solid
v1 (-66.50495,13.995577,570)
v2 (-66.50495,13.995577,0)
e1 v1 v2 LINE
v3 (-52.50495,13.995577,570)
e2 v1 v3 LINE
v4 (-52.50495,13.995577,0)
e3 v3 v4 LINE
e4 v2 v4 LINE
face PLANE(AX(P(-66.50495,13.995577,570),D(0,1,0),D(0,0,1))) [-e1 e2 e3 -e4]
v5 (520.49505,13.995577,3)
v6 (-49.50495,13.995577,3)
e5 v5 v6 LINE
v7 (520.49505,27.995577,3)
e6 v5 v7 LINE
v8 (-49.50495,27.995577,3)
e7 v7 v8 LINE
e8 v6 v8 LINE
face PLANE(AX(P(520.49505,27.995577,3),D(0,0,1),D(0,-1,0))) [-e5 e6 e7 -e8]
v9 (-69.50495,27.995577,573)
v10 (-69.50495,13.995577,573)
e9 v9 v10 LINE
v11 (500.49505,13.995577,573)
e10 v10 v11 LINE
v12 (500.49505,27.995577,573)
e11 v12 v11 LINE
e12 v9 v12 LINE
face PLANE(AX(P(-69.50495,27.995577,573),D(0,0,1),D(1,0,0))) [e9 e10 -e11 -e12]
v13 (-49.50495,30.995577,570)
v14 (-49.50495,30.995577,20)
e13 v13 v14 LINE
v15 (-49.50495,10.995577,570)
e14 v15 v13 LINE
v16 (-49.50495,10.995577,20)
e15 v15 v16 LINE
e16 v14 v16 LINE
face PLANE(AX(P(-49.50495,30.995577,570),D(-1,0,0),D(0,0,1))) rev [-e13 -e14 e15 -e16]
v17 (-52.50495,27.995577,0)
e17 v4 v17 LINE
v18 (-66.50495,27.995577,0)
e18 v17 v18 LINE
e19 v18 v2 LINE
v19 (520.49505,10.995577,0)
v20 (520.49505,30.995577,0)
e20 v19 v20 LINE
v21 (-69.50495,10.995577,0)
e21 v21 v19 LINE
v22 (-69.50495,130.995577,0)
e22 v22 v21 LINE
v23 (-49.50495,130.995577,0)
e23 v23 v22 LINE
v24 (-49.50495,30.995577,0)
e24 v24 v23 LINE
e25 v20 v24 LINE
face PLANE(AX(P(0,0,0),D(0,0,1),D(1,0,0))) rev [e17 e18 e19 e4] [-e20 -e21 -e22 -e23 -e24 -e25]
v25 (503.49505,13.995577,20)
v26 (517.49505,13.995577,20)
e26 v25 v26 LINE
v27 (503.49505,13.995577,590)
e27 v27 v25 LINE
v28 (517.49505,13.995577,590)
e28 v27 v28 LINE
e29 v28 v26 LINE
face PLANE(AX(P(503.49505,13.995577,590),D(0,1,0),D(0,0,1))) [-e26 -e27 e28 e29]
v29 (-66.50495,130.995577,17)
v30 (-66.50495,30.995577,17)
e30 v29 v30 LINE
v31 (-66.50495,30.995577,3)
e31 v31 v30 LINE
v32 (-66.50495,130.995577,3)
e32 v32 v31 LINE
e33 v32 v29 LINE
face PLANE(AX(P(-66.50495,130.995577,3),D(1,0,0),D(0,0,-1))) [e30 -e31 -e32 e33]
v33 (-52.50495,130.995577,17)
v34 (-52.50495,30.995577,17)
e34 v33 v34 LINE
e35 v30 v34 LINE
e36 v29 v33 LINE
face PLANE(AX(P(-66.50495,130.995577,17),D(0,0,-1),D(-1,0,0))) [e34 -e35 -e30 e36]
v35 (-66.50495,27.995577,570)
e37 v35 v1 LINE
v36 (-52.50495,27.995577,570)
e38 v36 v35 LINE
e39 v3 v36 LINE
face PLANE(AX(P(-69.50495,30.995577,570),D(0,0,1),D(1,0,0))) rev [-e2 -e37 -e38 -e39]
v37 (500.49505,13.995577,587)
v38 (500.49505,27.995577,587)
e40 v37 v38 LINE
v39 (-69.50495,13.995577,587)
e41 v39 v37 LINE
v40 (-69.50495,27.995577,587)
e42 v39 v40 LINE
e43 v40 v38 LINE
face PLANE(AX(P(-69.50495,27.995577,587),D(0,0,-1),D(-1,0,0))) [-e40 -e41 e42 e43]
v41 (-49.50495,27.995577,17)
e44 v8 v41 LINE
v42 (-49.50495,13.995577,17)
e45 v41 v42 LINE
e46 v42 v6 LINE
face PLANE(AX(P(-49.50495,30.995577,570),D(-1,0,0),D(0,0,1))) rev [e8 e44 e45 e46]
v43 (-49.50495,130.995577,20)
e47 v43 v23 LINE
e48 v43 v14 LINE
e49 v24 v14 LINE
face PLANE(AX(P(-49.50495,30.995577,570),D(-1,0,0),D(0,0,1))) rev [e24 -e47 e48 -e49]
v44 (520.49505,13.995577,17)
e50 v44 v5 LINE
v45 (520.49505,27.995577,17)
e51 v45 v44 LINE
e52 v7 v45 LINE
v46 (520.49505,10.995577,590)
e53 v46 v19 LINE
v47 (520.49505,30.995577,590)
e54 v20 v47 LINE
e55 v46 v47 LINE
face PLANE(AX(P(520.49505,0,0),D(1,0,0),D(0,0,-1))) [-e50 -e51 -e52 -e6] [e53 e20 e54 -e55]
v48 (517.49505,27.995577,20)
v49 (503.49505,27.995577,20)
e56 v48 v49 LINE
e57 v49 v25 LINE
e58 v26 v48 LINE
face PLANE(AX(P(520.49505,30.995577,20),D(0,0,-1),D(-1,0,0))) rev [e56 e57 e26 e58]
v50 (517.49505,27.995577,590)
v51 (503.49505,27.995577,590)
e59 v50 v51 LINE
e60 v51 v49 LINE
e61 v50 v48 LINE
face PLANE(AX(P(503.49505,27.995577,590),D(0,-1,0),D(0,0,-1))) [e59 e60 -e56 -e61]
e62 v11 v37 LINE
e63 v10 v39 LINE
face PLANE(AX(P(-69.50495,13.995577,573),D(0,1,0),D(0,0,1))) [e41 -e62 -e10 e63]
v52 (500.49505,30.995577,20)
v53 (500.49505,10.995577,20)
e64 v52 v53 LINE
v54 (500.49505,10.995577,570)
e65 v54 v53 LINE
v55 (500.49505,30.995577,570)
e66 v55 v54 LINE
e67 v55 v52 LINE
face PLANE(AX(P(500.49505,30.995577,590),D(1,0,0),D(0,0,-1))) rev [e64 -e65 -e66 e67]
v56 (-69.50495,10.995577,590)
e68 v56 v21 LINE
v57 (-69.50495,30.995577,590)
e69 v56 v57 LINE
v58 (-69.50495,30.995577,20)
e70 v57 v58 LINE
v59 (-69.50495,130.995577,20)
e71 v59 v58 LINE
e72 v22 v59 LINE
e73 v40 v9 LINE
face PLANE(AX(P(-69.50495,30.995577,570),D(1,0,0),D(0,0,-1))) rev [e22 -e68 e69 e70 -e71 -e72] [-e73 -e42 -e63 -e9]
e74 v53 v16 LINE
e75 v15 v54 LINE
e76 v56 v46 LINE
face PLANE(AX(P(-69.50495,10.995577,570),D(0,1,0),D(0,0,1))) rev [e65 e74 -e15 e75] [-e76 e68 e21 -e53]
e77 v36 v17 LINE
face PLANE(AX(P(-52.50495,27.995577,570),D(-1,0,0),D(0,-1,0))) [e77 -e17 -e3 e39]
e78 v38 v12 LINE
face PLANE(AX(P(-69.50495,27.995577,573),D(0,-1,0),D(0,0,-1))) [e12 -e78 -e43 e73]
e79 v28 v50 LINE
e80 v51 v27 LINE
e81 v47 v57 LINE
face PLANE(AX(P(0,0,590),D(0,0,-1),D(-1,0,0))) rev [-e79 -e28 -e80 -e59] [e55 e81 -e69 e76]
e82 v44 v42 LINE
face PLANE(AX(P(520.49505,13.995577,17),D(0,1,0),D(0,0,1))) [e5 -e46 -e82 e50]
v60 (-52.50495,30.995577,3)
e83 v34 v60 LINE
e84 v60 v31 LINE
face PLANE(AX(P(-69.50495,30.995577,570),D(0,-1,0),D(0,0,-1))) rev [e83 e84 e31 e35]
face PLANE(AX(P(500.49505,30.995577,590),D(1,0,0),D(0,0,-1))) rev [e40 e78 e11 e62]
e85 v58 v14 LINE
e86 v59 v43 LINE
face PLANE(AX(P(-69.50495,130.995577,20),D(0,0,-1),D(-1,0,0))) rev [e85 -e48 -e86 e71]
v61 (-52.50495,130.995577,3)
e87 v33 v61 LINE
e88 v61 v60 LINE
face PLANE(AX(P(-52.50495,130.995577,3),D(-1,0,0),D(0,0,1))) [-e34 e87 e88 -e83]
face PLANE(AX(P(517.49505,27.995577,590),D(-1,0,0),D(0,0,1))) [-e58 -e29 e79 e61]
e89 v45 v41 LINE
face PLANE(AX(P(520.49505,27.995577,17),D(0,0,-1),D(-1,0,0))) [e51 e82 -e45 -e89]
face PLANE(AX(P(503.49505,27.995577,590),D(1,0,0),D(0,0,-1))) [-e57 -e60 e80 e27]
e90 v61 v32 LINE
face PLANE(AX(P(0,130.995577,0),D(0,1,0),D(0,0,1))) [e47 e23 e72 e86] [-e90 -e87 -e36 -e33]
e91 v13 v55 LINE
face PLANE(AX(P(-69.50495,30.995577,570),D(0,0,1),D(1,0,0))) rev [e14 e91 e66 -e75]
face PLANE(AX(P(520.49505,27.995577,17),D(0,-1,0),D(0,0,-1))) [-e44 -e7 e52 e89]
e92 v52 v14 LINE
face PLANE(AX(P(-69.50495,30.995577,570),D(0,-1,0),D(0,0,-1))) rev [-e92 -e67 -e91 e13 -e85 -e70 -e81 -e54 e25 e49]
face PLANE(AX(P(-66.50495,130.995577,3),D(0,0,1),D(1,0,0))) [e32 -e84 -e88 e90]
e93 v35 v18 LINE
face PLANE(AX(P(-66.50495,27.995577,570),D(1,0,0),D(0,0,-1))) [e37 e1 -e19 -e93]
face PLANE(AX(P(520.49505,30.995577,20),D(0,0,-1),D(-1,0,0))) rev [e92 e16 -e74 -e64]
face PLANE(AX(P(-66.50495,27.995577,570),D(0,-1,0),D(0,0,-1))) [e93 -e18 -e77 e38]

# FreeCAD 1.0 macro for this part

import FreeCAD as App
import Part
import Sketcher


def add_polygon(sketch, points):
    """Adds a closed chain of lines whose ends are joined by coincident constraints."""
    first, n = sketch.GeometryCount, len(points)
    for a, b in zip(points, points[1:] + points[:1]):
        sketch.addGeometry(Part.LineSegment(App.Vector(*a, 0), App.Vector(*b, 0)), False)
    for i in range(n):
        sketch.addConstraint(Sketcher.Constraint("Coincident", first + i, 2, first + (i + 1) % n, 1))

doc = App.newDocument("Part")
body = doc.addObject("PartDesign::Body", "Body")

# Sketch on XY plane
sketch1 = body.newObject("Sketcher::SketchObject", "Sketch")
sketch1.AttachmentSupport = (doc.getObject("XY_Plane"), [""])
sketch1.MapMode = "FlatFace"
add_polygon(sketch1, [(-70, 31), (-70, 11), (-50, 11), (-50, 31)])  # lines 0-3
add_polygon(sketch1, [(-53, 14), (-67, 14), (-67, 28), (-53, 28)])  # lines 4-7
sketch1.addConstraint(Sketcher.Constraint("Vertical", 0))
sketch1.addConstraint(Sketcher.Constraint("Horizontal", 1))
sketch1.addConstraint(Sketcher.Constraint("Vertical", 2))
sketch1.addConstraint(Sketcher.Constraint("Horizontal", 3))
sketch1.addConstraint(Sketcher.Constraint("Horizontal", 4))
sketch1.addConstraint(Sketcher.Constraint("Vertical", 5))
sketch1.addConstraint(Sketcher.Constraint("Horizontal", 6))
sketch1.addConstraint(Sketcher.Constraint("Vertical", 7))
sketch1.addConstraint(Sketcher.Constraint("Equal", 3, 0))
sketch1.addConstraint(Sketcher.Constraint("Equal", 6, 5))
sketch1.addConstraint(Sketcher.Constraint("DistanceX", 1, 1, 1, 2, 20.0))
sketch1.addConstraint(Sketcher.Constraint("DistanceX", 4, 2, 4, 1, 14.0))
sketch1.addConstraint(Sketcher.Constraint("DistanceX", 0, 2, 4, 2, 3.0))
sketch1.addConstraint(Sketcher.Constraint("DistanceY", 0, 2, 4, 2, 3.0))
sketch1.addConstraint(Sketcher.Constraint("DistanceX", 0, 2, -1, 1, 69.50495))
sketch1.addConstraint(Sketcher.Constraint("DistanceY", -1, 1, 0, 2, 10.995577))
pad1 = body.newObject("PartDesign::Pad", "Pad")
pad1.Profile = sketch1
pad1.Length = 570

# Sketch on XZ plane
sketch2 = body.newObject("Sketcher::SketchObject", "Sketch001")
sketch2.AttachmentSupport = (doc.getObject("XZ_Plane"), [""])
sketch2.MapMode = "FlatFace"
sketch2.AttachmentOffset = App.Placement(App.Vector(0, 0, -30.995577), App.Rotation())
add_polygon(sketch2, [(-70, 0), (-70, 20), (-50, 20), (-50, 0)])  # lines 0-3
add_polygon(sketch2, [(-53, 17), (-67, 17), (-67, 3), (-53, 3)])  # lines 4-7
sketch2.addConstraint(Sketcher.Constraint("Vertical", 0))
sketch2.addConstraint(Sketcher.Constraint("Horizontal", 1))
sketch2.addConstraint(Sketcher.Constraint("Vertical", 2))
sketch2.addConstraint(Sketcher.Constraint("Horizontal", 3))
sketch2.addConstraint(Sketcher.Constraint("Horizontal", 4))
sketch2.addConstraint(Sketcher.Constraint("Vertical", 5))
sketch2.addConstraint(Sketcher.Constraint("Horizontal", 6))
sketch2.addConstraint(Sketcher.Constraint("Vertical", 7))
sketch2.addConstraint(Sketcher.Constraint("PointOnObject", 2, 2, -1))
sketch2.addConstraint(Sketcher.Constraint("Equal", 3, 0))
sketch2.addConstraint(Sketcher.Constraint("Equal", 6, 5))
sketch2.addConstraint(Sketcher.Constraint("DistanceX", 1, 1, 1, 2, 20.0))
sketch2.addConstraint(Sketcher.Constraint("DistanceX", 4, 2, 4, 1, 14.0))
sketch2.addConstraint(Sketcher.Constraint("DistanceY", -1, 1, 4, 2, 17.0))
sketch2.addConstraint(Sketcher.Constraint("DistanceX", 0, 2, 4, 2, 3.0))
sketch2.addConstraint(Sketcher.Constraint("DistanceX", 0, 2, -1, 1, 69.50495))
pad2 = body.newObject("PartDesign::Pad", "Pad001")
pad2.Profile = sketch2
pad2.Length = 100
pad2.Reversed = True

# Sketch on YZ plane
sketch3 = body.newObject("Sketcher::SketchObject", "Sketch002")
sketch3.AttachmentSupport = (doc.getObject("YZ_Plane"), [""])
sketch3.MapMode = "FlatFace"
sketch3.AttachmentOffset = App.Placement(App.Vector(0, 0, -49.50495), App.Rotation())
add_polygon(sketch3, [(31, 20), (11, 20), (11, 0), (31, 0)])  # lines 0-3
add_polygon(sketch3, [(14, 3), (14, 17), (28, 17), (28, 3)])  # lines 4-7
sketch3.addConstraint(Sketcher.Constraint("Horizontal", 0))
sketch3.addConstraint(Sketcher.Constraint("Vertical", 1))
sketch3.addConstraint(Sketcher.Constraint("Horizontal", 2))
sketch3.addConstraint(Sketcher.Constraint("Vertical", 3))
sketch3.addConstraint(Sketcher.Constraint("Vertical", 4))
sketch3.addConstraint(Sketcher.Constraint("Horizontal", 5))
sketch3.addConstraint(Sketcher.Constraint("Vertical", 6))
sketch3.addConstraint(Sketcher.Constraint("Horizontal", 7))
sketch3.addConstraint(Sketcher.Constraint("PointOnObject", 1, 2, -1))
sketch3.addConstraint(Sketcher.Constraint("Equal", 2, 1))
sketch3.addConstraint(Sketcher.Constraint("Equal", 7, 4))
sketch3.addConstraint(Sketcher.Constraint("DistanceX", 0, 2, 0, 1, 20.0))
sketch3.addConstraint(Sketcher.Constraint("DistanceX", 5, 1, 5, 2, 14.0))
sketch3.addConstraint(Sketcher.Constraint("DistanceY", -1, 1, 4, 2, 17.0))
sketch3.addConstraint(Sketcher.Constraint("DistanceX", 0, 2, 4, 2, 3.0))
sketch3.addConstraint(Sketcher.Constraint("DistanceX", -1, 1, 0, 2, 10.995577))
pad3 = body.newObject("PartDesign::Pad", "Pad002")
pad3.Profile = sketch3
pad3.Length = 570

# Sketch on XY plane
sketch4 = body.newObject("Sketcher::SketchObject", "Sketch003")
sketch4.AttachmentSupport = (doc.getObject("XY_Plane"), [""])
sketch4.MapMode = "FlatFace"
sketch4.AttachmentOffset = App.Placement(App.Vector(0, 0, 20), App.Rotation())
add_polygon(sketch4, [(500, 31), (500, 11), (520, 11), (520, 31)])  # lines 0-3
add_polygon(sketch4, [(517, 14), (503, 14), (503, 28), (517, 28)])  # lines 4-7
sketch4.addConstraint(Sketcher.Constraint("Vertical", 0))
sketch4.addConstraint(Sketcher.Constraint("Horizontal", 1))
sketch4.addConstraint(Sketcher.Constraint("Vertical", 2))
sketch4.addConstraint(Sketcher.Constraint("Horizontal", 3))
sketch4.addConstraint(Sketcher.Constraint("Horizontal", 4))
sketch4.addConstraint(Sketcher.Constraint("Vertical", 5))
sketch4.addConstraint(Sketcher.Constraint("Horizontal", 6))
sketch4.addConstraint(Sketcher.Constraint("Vertical", 7))
sketch4.addConstraint(Sketcher.Constraint("Equal", 3, 0))
sketch4.addConstraint(Sketcher.Constraint("Equal", 6, 5))
sketch4.addConstraint(Sketcher.Constraint("DistanceX", 1, 1, 1, 2, 20.0))
sketch4.addConstraint(Sketcher.Constraint("DistanceX", 4, 2, 4, 1, 14.0))
sketch4.addConstraint(Sketcher.Constraint("DistanceX", 0, 2, 4, 2, 3.0))
sketch4.addConstraint(Sketcher.Constraint("DistanceY", 0, 2, 4, 2, 3.0))
sketch4.addConstraint(Sketcher.Constraint("DistanceX", -1, 1, 0, 2, 500.49505))
sketch4.addConstraint(Sketcher.Constraint("DistanceY", -1, 1, 0, 2, 10.995577))
pad4 = body.newObject("PartDesign::Pad", "Pad003")
pad4.Profile = sketch4
pad4.Length = 570

# Sketch on YZ plane
sketch5 = body.newObject("Sketcher::SketchObject", "Sketch004")
sketch5.AttachmentSupport = (doc.getObject("YZ_Plane"), [""])
sketch5.MapMode = "FlatFace"
sketch5.AttachmentOffset = App.Placement(App.Vector(0, 0, 500.49505), App.Rotation())
add_polygon(sketch5, [(31, 570), (11, 570), (11, 590), (31, 590)])  # lines 0-3
add_polygon(sketch5, [(14, 587), (14, 573), (28, 573), (28, 587)])  # lines 4-7
sketch5.addConstraint(Sketcher.Constraint("Horizontal", 0))
sketch5.addConstraint(Sketcher.Constraint("Vertical", 1))
sketch5.addConstraint(Sketcher.Constraint("Horizontal", 2))
sketch5.addConstraint(Sketcher.Constraint("Vertical", 3))
sketch5.addConstraint(Sketcher.Constraint("Vertical", 4))
sketch5.addConstraint(Sketcher.Constraint("Horizontal", 5))
sketch5.addConstraint(Sketcher.Constraint("Vertical", 6))
sketch5.addConstraint(Sketcher.Constraint("Horizontal", 7))
sketch5.addConstraint(Sketcher.Constraint("Equal", 2, 1))
sketch5.addConstraint(Sketcher.Constraint("Equal", 7, 4))
sketch5.addConstraint(Sketcher.Constraint("DistanceX", 0, 2, 0, 1, 20.0))
sketch5.addConstraint(Sketcher.Constraint("DistanceX", 5, 1, 5, 2, 14.0))
sketch5.addConstraint(Sketcher.Constraint("DistanceY", -1, 1, 0, 2, 570.0))
sketch5.addConstraint(Sketcher.Constraint("DistanceY", -1, 1, 4, 2, 573.0))
sketch5.addConstraint(Sketcher.Constraint("DistanceX", 0, 2, 4, 2, 3.0))
sketch5.addConstraint(Sketcher.Constraint("DistanceX", -1, 1, 0, 2, 10.995577))
pad5 = body.newObject("PartDesign::Pad", "Pad004")
pad5.Profile = sketch5
pad5.Length = 570
pad5.Reversed = True

doc.recompute()
